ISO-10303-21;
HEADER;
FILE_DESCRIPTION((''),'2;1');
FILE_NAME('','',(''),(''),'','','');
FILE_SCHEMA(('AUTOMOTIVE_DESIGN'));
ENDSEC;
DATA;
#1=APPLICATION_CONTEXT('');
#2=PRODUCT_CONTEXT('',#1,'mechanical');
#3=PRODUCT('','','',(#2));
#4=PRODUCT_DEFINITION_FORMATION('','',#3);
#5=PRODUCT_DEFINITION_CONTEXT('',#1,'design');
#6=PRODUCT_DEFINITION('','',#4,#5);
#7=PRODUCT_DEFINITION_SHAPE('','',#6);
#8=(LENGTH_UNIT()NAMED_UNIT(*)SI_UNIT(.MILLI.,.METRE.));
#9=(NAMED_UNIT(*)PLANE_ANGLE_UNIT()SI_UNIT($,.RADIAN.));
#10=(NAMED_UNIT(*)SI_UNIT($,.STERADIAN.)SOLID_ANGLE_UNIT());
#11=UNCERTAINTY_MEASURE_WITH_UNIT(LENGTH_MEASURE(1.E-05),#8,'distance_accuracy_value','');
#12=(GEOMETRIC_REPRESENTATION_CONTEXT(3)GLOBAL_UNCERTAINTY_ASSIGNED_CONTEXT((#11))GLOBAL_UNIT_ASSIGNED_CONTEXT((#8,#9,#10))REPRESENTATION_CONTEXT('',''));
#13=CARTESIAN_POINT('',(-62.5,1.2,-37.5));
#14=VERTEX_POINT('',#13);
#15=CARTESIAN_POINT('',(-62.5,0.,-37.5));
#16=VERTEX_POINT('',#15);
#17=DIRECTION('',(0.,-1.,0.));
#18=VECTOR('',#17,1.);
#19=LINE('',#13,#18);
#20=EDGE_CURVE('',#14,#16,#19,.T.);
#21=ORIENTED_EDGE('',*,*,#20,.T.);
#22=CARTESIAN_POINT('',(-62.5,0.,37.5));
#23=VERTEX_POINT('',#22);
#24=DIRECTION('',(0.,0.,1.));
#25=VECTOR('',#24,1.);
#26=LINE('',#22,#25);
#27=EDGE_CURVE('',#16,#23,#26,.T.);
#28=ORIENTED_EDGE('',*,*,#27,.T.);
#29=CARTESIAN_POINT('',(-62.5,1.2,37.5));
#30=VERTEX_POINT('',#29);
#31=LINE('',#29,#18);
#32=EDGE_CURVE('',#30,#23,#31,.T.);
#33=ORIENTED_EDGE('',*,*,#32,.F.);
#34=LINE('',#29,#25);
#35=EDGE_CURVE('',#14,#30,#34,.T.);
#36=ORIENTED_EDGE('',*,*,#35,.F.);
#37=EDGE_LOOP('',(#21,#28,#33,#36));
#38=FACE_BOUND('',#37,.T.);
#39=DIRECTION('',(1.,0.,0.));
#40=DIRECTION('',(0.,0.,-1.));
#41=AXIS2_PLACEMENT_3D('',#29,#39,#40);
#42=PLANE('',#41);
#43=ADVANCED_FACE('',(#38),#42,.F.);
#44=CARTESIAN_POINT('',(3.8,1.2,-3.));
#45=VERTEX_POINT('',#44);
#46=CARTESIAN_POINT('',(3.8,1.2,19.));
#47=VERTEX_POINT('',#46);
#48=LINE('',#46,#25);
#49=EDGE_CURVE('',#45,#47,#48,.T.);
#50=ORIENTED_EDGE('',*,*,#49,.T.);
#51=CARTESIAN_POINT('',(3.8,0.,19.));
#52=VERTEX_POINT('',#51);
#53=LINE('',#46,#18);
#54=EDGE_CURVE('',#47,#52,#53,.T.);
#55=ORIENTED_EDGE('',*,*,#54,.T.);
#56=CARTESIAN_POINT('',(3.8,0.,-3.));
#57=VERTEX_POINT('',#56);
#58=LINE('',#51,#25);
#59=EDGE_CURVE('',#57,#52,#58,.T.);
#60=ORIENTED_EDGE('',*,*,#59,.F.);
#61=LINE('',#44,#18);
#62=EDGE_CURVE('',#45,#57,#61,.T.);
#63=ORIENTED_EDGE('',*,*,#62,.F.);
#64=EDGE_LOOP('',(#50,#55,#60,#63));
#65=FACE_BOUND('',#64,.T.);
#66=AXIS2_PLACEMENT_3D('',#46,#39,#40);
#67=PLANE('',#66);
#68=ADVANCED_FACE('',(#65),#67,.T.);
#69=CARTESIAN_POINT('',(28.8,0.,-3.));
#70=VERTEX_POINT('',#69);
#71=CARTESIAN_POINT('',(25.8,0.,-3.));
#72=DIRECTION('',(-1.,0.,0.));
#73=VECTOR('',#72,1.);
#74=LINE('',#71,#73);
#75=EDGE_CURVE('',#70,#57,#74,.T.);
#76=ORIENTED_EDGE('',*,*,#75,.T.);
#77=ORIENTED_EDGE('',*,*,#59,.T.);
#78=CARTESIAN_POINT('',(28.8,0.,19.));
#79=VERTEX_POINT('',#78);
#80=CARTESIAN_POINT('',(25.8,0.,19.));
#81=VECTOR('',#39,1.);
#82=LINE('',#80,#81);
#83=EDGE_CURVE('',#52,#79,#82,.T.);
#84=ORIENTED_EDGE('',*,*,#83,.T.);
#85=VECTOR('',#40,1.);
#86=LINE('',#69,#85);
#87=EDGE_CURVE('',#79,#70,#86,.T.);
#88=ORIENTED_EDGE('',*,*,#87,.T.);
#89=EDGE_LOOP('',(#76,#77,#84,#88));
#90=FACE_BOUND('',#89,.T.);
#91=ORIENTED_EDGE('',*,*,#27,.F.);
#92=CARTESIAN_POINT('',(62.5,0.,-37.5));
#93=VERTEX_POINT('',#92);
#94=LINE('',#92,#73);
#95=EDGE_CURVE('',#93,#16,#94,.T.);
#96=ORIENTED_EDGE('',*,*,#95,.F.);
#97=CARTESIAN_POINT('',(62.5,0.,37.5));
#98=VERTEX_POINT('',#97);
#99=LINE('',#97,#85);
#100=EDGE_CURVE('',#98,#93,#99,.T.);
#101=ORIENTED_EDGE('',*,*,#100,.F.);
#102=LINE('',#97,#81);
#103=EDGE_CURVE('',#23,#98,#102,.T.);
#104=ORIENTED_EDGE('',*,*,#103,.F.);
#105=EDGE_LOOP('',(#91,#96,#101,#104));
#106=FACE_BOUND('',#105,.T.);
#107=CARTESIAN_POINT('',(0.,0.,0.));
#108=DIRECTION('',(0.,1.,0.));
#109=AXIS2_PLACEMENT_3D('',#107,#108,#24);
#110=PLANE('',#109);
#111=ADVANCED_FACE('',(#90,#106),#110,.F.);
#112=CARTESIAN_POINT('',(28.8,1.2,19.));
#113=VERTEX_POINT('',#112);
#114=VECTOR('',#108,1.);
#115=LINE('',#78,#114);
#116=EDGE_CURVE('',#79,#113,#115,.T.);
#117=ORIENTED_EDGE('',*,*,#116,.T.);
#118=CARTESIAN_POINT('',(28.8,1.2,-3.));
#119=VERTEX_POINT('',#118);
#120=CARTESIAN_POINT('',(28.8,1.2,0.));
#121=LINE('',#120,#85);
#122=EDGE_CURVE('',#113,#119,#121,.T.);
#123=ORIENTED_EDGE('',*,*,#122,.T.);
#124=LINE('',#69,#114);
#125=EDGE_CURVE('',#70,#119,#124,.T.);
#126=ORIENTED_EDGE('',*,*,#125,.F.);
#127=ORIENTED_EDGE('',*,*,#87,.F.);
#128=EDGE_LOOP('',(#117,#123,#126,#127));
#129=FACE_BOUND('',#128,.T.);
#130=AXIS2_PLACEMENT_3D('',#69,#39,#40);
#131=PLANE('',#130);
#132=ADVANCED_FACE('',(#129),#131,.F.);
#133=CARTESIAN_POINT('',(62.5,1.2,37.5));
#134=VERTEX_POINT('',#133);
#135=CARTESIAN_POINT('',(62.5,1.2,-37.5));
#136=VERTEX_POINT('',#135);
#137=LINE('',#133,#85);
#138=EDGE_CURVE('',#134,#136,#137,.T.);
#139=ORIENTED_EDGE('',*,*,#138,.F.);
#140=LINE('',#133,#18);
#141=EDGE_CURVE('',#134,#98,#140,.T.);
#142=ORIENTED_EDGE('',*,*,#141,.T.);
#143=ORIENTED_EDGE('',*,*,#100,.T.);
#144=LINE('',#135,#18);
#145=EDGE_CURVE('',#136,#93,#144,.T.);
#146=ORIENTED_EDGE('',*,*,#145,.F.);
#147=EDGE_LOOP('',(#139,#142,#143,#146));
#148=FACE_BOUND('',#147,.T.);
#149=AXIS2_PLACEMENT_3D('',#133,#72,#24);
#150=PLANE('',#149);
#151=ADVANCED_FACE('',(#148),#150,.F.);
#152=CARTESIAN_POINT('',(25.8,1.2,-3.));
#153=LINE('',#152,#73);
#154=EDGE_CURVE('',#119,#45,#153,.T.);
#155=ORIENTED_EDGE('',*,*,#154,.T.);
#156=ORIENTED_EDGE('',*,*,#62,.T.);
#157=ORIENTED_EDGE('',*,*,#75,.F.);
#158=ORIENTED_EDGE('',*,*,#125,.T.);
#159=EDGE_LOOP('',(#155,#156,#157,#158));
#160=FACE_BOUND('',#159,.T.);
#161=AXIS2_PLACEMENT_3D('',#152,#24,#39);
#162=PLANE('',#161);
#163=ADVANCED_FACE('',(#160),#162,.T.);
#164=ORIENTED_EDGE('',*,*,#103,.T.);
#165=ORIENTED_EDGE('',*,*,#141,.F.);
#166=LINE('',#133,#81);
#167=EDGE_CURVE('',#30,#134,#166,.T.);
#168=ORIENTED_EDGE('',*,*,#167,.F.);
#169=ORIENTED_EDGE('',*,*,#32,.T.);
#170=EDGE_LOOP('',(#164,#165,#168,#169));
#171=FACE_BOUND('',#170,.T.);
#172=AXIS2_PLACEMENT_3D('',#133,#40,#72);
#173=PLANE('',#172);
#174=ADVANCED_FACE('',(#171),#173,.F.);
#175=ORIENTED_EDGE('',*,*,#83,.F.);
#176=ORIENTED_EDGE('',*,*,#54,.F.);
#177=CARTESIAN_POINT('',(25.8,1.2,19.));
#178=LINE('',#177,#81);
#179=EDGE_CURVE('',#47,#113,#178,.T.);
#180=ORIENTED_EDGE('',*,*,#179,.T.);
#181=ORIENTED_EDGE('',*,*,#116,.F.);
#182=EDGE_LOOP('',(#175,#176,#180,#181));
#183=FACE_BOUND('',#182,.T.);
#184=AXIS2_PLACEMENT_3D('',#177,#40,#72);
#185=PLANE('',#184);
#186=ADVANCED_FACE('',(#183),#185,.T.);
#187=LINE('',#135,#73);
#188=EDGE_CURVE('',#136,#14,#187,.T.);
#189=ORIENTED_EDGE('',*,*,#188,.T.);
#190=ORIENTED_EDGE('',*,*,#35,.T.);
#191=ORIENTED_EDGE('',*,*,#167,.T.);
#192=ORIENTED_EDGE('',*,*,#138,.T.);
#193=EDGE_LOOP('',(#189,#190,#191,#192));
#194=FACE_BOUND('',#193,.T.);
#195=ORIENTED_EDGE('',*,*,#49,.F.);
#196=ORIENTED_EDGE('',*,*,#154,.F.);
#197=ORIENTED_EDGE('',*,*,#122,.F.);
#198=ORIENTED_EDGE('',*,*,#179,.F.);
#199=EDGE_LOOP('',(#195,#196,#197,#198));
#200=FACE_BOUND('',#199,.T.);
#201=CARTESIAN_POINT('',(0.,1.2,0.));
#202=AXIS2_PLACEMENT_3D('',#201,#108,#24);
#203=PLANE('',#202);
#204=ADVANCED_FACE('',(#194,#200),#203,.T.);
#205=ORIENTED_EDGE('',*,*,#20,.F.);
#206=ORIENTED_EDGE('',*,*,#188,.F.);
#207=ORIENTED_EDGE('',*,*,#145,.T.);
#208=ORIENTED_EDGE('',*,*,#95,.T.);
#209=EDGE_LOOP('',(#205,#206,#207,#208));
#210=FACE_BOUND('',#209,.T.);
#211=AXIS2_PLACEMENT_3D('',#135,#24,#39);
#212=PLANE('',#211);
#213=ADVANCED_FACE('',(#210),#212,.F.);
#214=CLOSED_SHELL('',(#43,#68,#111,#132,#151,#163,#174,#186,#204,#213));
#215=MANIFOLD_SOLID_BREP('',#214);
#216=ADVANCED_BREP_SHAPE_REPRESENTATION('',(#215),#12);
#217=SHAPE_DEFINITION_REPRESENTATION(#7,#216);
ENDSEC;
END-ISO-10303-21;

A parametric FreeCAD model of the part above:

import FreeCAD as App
import Part
import Sketcher

V = App.Vector
Q = App.Units.Quantity

doc = App.newDocument("Part")
body = doc.addObject("PartDesign::Body", "Body")

sketch1 = body.newObject("Sketcher::SketchObject", "Sketch")
sketch1.AttachmentSupport = (doc.getObject("XZ_Plane"), [""])
sketch1.MapMode = "FlatFace"
sketch1.addGeometry([
    Part.LineSegment(V(-62, -38, 0), V(-62, 38, 0)),
    Part.LineSegment(V(-62, 38, 0), V(62, 38, 0)),
    Part.LineSegment(V(62, 38, 0), V(62, -38, 0)),
    Part.LineSegment(V(62, -38, 0), V(-62, -38, 0)),
    Part.LineSegment(V(26, 19, 0), V(4, 19, 0)),
    Part.LineSegment(V(4, 19, 0), V(4, -3, 0)),
    Part.LineSegment(V(4, -3, 0), V(26, -3, 0)),
    Part.LineSegment(V(26, -3, 0), V(26, 19, 0)),
], False)
sketch1.addConstraint([
    Sketcher.Constraint("Coincident", 0, 2, 1, 1),
    Sketcher.Constraint("Coincident", 1, 2, 2, 1),
    Sketcher.Constraint("Coincident", 2, 2, 3, 1),
    Sketcher.Constraint("Coincident", 3, 2, 0, 1),
    Sketcher.Constraint("Coincident", 4, 2, 5, 1),
    Sketcher.Constraint("Coincident", 5, 2, 6, 1),
    Sketcher.Constraint("Coincident", 6, 2, 7, 1),
    Sketcher.Constraint("Coincident", 7, 2, 4, 1),
    Sketcher.Constraint("Vertical", 0),
    Sketcher.Constraint("Horizontal", 1),
    Sketcher.Constraint("Vertical", 2),
    Sketcher.Constraint("Horizontal", 3),
    Sketcher.Constraint("Horizontal", 4),
    Sketcher.Constraint("Vertical", 5),
    Sketcher.Constraint("Horizontal", 6),
    Sketcher.Constraint("Vertical", 7),
    Sketcher.Constraint("Symmetric", 0, 2, 2, 2, -1, 1),
    Sketcher.Constraint("Equal", 6, 5),
    Sketcher.Constraint("DistanceX", 1, 1, 1, 2, Q("125 mm")),
    Sketcher.Constraint("DistanceX", 4, 2, 4, 1, Q("22 mm")),
    Sketcher.Constraint("DistanceY", 0, 1, 0, 2, Q("75 mm")),
    Sketcher.Constraint("DistanceY", -1, 1, 4, 2, Q("19 mm")),
    Sketcher.Constraint("DistanceX", -1, 1, 4, 2, Q("3.8 mm")),
])
pad1 = body.newObject("PartDesign::Pad", "Pad")
pad1.Profile = sketch1
pad1.Length = 1.2
pad1.Reversed = True

sketch2 = body.newObject("Sketcher::SketchObject", "Sketch001")
sketch2.AttachmentSupport = (doc.getObject("XZ_Plane"), [""])
sketch2.MapMode = "FlatFace"
sketch2.AttachmentOffset = App.Placement(V(0, 0, -1.2), App.Rotation())
sketch2.addGeometry([
    Part.LineSegment(V(25.8, -3, 0), V(25.8, 19, 0)),
    Part.LineSegment(V(25.8, 19, 0), V(28.8, 19, 0)),
    Part.LineSegment(V(28.8, 19, 0), V(28.8, -3, 0)),
    Part.LineSegment(V(28.8, -3, 0), V(25.8, -3, 0)),
], False)
sketch2.addConstraint([
    Sketcher.Constraint("Coincident", 0, 2, 1, 1),
    Sketcher.Constraint("Coincident", 1, 2, 2, 1),
    Sketcher.Constraint("Coincident", 2, 2, 3, 1),
    Sketcher.Constraint("Coincident", 3, 2, 0, 1),
    Sketcher.Constraint("Vertical", 0),
    Sketcher.Constraint("Horizontal", 1),
    Sketcher.Constraint("Vertical", 2),
    Sketcher.Constraint("Horizontal", 3),
    Sketcher.Constraint("DistanceX", 1, 1, 1, 2, Q("3 mm")),
    Sketcher.Constraint("DistanceY", 0, 1, 0, 2, Q("22 mm")),
    Sketcher.Constraint("DistanceY", -1, 1, 0, 2, Q("19 mm")),
    Sketcher.Constraint("DistanceX", -1, 1, 0, 2, Q("25.8 mm")),
])
pocket1 = body.newObject("PartDesign::Pocket", "Pocket")
pocket1.Profile = sketch2
pocket1.Type = "ThroughAll"
pocket1.Midplane = True

doc.recompute()
